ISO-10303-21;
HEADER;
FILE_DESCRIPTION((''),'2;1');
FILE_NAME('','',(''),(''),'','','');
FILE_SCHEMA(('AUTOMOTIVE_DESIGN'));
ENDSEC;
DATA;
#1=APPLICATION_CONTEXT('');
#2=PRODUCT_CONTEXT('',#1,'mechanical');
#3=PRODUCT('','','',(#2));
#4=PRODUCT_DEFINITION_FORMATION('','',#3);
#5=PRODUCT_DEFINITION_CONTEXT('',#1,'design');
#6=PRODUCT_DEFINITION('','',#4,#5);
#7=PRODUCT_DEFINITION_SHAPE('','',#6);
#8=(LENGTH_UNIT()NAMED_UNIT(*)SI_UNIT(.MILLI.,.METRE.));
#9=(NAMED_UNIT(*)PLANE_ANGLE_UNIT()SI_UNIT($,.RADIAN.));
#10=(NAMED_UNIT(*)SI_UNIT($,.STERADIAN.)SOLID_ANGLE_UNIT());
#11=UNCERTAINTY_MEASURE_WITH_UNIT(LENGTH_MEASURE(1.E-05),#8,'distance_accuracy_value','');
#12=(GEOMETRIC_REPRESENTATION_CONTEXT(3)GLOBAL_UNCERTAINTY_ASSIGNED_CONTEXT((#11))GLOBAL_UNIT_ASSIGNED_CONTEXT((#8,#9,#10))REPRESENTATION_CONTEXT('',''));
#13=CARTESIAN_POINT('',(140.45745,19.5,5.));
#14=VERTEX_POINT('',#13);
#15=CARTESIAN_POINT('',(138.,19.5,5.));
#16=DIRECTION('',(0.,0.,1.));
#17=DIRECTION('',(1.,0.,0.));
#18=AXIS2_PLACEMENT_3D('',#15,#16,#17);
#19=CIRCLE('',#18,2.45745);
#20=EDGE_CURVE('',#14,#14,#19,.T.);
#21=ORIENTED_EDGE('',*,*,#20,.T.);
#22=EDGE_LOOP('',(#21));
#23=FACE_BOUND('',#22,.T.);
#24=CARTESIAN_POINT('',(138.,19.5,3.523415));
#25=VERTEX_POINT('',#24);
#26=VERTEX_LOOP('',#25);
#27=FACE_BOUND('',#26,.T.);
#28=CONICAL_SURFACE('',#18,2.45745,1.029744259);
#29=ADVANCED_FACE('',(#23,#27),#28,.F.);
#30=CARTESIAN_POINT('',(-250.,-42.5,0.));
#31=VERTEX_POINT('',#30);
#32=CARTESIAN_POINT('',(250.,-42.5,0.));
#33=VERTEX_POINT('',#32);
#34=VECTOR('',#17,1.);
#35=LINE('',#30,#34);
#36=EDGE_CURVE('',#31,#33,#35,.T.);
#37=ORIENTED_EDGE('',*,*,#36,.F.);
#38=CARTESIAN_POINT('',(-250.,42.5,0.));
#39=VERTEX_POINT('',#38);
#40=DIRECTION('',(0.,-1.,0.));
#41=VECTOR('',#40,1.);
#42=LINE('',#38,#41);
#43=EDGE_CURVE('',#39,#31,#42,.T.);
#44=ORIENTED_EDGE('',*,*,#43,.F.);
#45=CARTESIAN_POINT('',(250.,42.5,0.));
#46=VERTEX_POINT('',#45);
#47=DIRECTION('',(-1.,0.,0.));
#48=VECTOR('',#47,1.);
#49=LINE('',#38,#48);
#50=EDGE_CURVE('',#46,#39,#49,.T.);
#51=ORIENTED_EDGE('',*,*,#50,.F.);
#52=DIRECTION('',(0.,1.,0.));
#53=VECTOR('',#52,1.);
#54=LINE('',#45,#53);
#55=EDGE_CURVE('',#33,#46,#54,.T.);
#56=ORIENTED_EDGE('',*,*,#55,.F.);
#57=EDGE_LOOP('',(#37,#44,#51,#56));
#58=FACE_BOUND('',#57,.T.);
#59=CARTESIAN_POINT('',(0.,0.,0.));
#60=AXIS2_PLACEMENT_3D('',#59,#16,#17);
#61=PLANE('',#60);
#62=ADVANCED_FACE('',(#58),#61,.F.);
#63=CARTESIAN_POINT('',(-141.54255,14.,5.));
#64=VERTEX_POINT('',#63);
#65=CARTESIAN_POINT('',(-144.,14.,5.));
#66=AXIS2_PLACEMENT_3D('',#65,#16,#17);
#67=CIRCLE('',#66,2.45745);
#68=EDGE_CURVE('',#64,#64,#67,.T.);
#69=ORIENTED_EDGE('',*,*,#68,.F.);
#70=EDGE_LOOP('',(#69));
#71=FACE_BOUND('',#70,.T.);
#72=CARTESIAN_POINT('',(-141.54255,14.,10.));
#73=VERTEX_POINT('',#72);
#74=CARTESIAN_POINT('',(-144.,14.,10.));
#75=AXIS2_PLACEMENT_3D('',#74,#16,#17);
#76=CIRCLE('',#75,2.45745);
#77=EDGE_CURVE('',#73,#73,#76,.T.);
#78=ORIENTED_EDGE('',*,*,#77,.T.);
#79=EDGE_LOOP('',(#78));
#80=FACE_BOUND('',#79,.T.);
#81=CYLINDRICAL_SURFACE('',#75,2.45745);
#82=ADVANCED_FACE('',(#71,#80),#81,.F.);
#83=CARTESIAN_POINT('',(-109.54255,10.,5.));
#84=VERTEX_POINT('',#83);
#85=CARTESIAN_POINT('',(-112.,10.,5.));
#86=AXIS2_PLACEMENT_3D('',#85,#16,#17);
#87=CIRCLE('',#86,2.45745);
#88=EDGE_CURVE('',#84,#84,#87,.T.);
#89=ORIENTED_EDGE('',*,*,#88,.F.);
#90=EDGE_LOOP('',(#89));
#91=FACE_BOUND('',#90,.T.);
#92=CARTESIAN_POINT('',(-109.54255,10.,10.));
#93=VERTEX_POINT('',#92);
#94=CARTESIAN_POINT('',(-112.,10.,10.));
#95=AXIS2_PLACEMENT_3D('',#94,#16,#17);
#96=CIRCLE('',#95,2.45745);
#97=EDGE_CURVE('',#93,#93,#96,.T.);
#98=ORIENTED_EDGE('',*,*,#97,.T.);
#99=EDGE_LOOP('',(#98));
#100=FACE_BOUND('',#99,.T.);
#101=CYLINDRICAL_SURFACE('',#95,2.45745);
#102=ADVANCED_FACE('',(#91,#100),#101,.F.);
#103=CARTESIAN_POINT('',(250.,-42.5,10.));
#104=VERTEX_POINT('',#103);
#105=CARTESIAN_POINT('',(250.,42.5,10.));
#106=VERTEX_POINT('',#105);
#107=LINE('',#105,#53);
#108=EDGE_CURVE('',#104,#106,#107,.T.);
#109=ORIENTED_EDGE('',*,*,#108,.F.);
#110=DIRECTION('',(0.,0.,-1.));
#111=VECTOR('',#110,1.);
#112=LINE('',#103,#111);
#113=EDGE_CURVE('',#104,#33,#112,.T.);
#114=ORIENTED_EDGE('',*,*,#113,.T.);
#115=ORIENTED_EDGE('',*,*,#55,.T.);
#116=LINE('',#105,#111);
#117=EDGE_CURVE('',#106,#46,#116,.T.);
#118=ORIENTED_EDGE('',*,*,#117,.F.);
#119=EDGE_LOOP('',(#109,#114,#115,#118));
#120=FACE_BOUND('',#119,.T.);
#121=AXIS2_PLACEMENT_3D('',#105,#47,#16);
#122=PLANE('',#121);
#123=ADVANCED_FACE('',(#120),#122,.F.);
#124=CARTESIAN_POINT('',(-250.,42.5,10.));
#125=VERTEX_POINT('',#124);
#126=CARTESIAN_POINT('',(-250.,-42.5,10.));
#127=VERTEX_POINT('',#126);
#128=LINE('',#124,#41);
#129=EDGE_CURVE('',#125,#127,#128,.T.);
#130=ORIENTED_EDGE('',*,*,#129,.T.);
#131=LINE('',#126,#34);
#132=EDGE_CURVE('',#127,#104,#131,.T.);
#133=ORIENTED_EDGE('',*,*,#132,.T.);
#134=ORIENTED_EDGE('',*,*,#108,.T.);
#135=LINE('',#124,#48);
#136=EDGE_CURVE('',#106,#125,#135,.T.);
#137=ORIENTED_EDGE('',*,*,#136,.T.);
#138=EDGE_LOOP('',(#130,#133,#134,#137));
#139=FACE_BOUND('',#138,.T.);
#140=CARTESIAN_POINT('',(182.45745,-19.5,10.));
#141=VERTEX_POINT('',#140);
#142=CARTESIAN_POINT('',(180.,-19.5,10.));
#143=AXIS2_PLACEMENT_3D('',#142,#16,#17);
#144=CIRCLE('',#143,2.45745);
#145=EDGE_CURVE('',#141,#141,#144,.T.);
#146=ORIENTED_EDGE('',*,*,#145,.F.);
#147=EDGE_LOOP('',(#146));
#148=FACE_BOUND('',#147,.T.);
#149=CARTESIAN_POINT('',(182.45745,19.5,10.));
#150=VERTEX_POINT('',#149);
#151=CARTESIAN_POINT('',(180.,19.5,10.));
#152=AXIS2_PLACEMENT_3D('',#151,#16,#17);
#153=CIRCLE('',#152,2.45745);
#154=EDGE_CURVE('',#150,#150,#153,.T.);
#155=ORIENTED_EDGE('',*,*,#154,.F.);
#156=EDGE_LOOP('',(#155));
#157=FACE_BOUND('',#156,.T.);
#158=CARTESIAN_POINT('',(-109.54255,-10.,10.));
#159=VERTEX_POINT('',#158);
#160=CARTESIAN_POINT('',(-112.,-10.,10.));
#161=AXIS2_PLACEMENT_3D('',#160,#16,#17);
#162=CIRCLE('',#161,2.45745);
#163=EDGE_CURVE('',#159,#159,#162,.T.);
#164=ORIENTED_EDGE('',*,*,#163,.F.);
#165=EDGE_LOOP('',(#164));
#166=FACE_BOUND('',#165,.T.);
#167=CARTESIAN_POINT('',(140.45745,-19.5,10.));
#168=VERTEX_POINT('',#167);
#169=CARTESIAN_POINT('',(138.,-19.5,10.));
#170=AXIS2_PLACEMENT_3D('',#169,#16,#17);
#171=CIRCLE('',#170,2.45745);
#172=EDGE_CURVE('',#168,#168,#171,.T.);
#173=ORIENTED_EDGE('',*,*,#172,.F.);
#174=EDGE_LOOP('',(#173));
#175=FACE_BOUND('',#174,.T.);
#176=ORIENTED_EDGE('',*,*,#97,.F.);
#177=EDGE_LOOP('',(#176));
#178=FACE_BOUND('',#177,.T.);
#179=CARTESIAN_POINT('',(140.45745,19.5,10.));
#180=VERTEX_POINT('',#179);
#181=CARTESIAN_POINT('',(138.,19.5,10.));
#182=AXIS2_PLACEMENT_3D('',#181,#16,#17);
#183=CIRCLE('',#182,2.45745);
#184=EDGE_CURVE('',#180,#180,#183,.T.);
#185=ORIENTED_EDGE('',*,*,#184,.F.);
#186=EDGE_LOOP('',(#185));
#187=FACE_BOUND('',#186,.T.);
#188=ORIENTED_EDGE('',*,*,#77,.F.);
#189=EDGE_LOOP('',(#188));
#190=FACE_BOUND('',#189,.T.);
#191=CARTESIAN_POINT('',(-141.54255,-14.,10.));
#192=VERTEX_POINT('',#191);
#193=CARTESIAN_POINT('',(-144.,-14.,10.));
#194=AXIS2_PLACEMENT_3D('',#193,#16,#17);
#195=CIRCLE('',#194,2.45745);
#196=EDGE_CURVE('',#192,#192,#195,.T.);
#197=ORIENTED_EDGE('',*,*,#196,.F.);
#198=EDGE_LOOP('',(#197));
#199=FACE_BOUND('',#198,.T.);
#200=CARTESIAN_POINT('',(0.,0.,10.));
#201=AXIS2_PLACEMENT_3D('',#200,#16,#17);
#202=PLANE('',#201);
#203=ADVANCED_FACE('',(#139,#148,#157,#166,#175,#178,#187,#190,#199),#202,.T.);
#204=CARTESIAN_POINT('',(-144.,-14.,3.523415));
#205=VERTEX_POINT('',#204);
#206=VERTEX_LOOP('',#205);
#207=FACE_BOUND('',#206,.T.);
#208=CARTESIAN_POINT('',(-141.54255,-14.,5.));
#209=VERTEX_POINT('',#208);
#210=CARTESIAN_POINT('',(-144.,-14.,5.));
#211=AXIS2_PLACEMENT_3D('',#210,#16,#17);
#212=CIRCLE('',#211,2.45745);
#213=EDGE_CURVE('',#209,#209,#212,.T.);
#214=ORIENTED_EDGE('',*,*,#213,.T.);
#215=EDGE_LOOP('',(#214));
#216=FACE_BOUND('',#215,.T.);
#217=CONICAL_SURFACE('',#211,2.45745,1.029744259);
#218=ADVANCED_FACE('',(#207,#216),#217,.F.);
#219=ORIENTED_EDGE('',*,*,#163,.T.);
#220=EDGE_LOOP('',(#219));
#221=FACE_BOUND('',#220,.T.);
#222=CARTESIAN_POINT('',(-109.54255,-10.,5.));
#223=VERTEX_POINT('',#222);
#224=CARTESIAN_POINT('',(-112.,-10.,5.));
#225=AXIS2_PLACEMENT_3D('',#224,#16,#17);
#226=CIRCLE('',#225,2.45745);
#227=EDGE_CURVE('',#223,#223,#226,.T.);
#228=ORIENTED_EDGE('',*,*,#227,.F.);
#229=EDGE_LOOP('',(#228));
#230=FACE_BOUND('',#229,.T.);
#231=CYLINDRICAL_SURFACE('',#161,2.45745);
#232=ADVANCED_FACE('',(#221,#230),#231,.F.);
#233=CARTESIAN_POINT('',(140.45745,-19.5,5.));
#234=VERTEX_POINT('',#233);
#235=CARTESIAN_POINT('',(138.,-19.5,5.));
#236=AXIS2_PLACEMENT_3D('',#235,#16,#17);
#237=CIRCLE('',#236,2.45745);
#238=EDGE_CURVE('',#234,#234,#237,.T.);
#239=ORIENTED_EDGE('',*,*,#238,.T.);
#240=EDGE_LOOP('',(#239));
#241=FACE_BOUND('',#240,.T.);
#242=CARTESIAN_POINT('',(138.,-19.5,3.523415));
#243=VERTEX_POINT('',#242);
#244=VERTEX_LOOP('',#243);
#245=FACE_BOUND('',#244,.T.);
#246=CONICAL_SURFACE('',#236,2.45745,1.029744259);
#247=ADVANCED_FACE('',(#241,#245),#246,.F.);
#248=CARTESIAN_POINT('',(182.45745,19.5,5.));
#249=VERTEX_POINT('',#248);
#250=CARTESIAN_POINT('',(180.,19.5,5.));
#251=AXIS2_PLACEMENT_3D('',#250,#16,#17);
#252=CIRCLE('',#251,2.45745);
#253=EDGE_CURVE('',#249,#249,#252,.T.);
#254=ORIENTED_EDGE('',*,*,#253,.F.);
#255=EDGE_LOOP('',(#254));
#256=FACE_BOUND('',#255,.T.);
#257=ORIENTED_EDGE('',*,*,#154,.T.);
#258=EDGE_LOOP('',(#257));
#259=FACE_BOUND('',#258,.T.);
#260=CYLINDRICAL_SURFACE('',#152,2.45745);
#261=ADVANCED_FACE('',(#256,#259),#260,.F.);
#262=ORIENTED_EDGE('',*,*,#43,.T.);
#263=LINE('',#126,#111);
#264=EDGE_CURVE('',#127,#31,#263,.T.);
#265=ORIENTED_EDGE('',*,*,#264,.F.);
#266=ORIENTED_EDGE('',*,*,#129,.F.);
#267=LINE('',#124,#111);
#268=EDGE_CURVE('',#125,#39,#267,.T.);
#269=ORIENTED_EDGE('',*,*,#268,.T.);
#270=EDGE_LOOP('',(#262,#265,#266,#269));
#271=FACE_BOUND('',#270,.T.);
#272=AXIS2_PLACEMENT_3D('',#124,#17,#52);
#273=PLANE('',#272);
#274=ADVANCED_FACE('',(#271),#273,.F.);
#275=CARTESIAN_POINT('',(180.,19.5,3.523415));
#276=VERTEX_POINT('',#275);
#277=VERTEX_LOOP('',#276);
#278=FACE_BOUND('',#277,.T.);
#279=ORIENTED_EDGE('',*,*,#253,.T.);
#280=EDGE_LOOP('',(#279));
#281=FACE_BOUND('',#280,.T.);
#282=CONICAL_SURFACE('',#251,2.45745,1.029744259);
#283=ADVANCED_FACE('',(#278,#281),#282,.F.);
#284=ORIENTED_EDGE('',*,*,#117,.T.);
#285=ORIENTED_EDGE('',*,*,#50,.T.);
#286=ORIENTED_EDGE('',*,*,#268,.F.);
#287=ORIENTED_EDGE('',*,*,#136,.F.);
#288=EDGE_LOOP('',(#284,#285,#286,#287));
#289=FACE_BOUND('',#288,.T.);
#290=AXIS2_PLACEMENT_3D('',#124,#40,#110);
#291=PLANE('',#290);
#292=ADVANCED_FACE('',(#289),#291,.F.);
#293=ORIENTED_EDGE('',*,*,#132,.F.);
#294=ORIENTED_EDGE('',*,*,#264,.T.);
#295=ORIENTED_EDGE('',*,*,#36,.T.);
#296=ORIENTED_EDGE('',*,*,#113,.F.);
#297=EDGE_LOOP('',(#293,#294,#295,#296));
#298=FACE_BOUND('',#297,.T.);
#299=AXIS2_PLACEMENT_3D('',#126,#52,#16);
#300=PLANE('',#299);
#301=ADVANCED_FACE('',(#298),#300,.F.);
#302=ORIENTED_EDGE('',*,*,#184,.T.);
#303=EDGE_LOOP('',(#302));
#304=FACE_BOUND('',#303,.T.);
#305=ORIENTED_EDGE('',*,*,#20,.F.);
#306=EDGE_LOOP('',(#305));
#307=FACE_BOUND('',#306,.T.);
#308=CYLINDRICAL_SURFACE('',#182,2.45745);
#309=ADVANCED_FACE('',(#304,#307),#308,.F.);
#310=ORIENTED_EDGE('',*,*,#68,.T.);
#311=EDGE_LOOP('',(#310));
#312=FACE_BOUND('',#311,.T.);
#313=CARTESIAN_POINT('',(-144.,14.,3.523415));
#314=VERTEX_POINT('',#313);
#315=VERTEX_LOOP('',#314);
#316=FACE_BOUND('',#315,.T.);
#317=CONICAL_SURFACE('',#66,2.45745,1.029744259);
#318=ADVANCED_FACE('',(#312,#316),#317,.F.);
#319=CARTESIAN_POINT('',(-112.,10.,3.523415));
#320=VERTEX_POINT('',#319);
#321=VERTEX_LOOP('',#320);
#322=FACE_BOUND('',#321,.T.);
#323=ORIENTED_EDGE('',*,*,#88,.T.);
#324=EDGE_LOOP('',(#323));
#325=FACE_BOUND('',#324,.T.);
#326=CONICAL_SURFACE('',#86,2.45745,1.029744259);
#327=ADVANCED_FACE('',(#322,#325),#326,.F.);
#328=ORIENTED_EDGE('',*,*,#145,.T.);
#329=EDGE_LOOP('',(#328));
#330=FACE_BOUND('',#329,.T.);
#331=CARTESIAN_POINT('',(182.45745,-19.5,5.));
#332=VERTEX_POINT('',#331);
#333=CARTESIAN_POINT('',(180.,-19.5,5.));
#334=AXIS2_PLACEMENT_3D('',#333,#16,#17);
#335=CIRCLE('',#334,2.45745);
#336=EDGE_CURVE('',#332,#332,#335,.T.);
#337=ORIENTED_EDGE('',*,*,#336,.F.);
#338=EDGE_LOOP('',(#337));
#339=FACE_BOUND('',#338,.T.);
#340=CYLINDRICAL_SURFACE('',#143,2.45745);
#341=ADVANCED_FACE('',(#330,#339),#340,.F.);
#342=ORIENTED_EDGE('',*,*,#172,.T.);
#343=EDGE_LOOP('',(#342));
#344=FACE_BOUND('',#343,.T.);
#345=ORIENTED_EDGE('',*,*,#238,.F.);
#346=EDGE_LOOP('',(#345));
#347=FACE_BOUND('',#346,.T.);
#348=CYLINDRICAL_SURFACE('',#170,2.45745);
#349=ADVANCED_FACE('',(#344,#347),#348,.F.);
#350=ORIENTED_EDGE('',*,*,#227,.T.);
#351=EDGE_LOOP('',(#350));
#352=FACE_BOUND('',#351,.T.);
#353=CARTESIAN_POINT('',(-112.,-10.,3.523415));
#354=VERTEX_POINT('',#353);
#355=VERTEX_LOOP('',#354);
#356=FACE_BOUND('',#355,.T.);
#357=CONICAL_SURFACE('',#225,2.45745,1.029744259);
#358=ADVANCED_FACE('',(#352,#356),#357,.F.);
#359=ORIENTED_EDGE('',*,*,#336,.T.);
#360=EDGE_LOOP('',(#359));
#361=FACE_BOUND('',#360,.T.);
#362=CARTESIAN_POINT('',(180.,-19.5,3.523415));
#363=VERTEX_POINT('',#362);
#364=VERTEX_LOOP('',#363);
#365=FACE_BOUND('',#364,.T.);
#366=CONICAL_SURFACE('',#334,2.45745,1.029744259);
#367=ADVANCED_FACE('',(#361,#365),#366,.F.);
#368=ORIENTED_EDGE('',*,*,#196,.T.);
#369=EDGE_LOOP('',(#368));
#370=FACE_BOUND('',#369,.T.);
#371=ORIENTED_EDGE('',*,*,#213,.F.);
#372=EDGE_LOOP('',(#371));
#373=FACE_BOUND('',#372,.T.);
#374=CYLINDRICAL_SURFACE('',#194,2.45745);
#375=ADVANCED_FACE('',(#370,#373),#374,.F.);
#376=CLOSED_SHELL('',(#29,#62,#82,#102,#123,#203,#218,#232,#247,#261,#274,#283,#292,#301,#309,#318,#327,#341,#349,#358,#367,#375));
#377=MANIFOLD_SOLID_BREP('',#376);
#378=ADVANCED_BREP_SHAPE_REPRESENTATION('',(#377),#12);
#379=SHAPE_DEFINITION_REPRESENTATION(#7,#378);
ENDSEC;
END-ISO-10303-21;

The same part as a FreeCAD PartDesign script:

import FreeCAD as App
import Part
import Sketcher

V = App.Vector

doc = App.newDocument("Part")
params = doc.addObject("Spreadsheet::Sheet", "Params")
for row, (alias, value) in enumerate([
    ("sketch1_width", "500 mm"),
    ("sketch1_height", "85 mm"),
    ("pad1_length", "10 mm"),
    ("hole_diameter", "4.9149 mm"),
    ("hole_depth", "5 mm"),
    ("hole2_diameter", "4.9149 mm"),
    ("hole2_depth", "5 mm"),
], start=1):
    params.set(f"A{row}", alias)
    params.set(f"B{row}", "=" + value)
    params.setAlias(f"B{row}", alias)

body = doc.addObject("PartDesign::Body", "Body")

sketch1 = body.newObject("Sketcher::SketchObject", "Sketch")
sketch1.AttachmentSupport = (doc.getObject("XY_Plane"), [""])
sketch1.MapMode = "FlatFace"
sketch1.addGeometry([
    Part.LineSegment(V(-250, 42, 0), V(-250, -42, 0)),
    Part.LineSegment(V(-250, -42, 0), V(250, -42, 0)),
    Part.LineSegment(V(250, -42, 0), V(250, 42, 0)),
    Part.LineSegment(V(250, 42, 0), V(-250, 42, 0)),
], False)
sketch1.addConstraint([
    Sketcher.Constraint("Coincident", 0, 2, 1, 1),
    Sketcher.Constraint("Coincident", 1, 2, 2, 1),
    Sketcher.Constraint("Coincident", 2, 2, 3, 1),
    Sketcher.Constraint("Coincident", 3, 2, 0, 1),
    Sketcher.Constraint("Vertical", 0),
    Sketcher.Constraint("Horizontal", 1),
    Sketcher.Constraint("Vertical", 2),
    Sketcher.Constraint("Horizontal", 3),
    Sketcher.Constraint("Symmetric", 0, 2, 2, 2, -1, 1),
    Sketcher.Constraint("DistanceX", 1, 1, 1, 2, 500.0),
    Sketcher.Constraint("DistanceY", 0, 2, 0, 1, 85.0),
])
sketch1.setExpression("Constraints[9]", "Params.sketch1_width")
sketch1.setExpression("Constraints[10]", "Params.sketch1_height")
pad1 = body.newObject("PartDesign::Pad", "Pad")
pad1.Profile = sketch1
pad1.setExpression("Length", "Params.pad1_length")

sketch2 = body.newObject("Sketcher::SketchObject", "Sketch001")
sketch2.AttachmentSupport = (doc.getObject("XY_Plane"), [""])
sketch2.MapMode = "FlatFace"
sketch2.AttachmentOffset = App.Placement(V(0, 0, 10), App.Rotation())
sketch2.addGeometry([
    Part.Circle(V(180, 19.5, 0), V(0, 0, 1), 2.5),
    Part.Circle(V(180, -19.5, 0), V(0, 0, 1), 2.5),
    Part.Circle(V(138, -19.5, 0), V(0, 0, 1), 2.5),
    Part.Circle(V(138, 19.5, 0), V(0, 0, 1), 2.5),
], False)
sketch2.addConstraint([
    Sketcher.Constraint("Equal", 0, 1),
    Sketcher.Constraint("Equal", 1, 2),
    Sketcher.Constraint("Equal", 2, 3),
    Sketcher.Constraint("Symmetric", 0, 3, 1, 3, -1),
    Sketcher.Constraint("Symmetric", 2, 3, 3, 3, -1),
    Sketcher.Constraint("Horizontal", 1, 3, 2, 3),
    Sketcher.Constraint("DistanceX", -1, 1, 0, 3, 180.0),
    Sketcher.Constraint("DistanceX", -1, 1, 2, 3, 138.0),
    Sketcher.Constraint("DistanceY", 1, 3, 0, 3, 39.0),
    Sketcher.Constraint("Diameter", 0, 4.9149),
])
doc.recompute()
hole = body.newObject("PartDesign::Hole", "Hole")
hole.Profile = sketch2
hole.ThreadType = "None"
hole.setExpression("Diameter", "Params.hole_diameter")
hole.DepthType = "Dimension"
hole.setExpression("Depth", "Params.hole_depth")
hole.DrillPoint = "Angled"
hole.DrillPointAngle = 118

sketch3 = body.newObject("Sketcher::SketchObject", "Sketch002")
sketch3.AttachmentSupport = (doc.getObject("XY_Plane"), [""])
sketch3.MapMode = "FlatFace"
sketch3.AttachmentOffset = App.Placement(V(0, 0, 10), App.Rotation())
sketch3.addGeometry([
    Part.Circle(V(-144, 14, 0), V(0, 0, 1), 2.5),
    Part.Circle(V(-112, 10, 0), V(0, 0, 1), 2.5),
    Part.Circle(V(-112, -10, 0), V(0, 0, 1), 2.5),
    Part.Circle(V(-144, -14, 0), V(0, 0, 1), 2.5),
], False)
sketch3.addConstraint([
    Sketcher.Constraint("Equal", 0, 1),
    Sketcher.Constraint("Equal", 1, 2),
    Sketcher.Constraint("Equal", 2, 3),
    Sketcher.Constraint("Symmetric", 1, 3, 2, 3, -1),
    Sketcher.Constraint("Symmetric", 0, 3, 3, 3, -1),
    Sketcher.Constraint("DistanceX", 0, 3, -1, 1, 144.0),
    Sketcher.Constraint("DistanceY", -1, 1, 0, 3, 14.0),
    Sketcher.Constraint("DistanceX", 1, 3, -1, 1, 112.0),
    Sketcher.Constraint("DistanceY", -1, 1, 1, 3, 10.0),
    Sketcher.Constraint("Diameter", 0, 4.9149),
])
doc.recompute()
hole2 = body.newObject("PartDesign::Hole", "Hole001")
hole2.Profile = sketch3
hole2.ThreadType = "None"
hole2.setExpression("Diameter", "Params.hole2_diameter")
hole2.DepthType = "Dimension"
hole2.setExpression("Depth", "Params.hole2_depth")
hole2.DrillPoint = "Angled"
hole2.DrillPointAngle = 118

doc.recompute()
